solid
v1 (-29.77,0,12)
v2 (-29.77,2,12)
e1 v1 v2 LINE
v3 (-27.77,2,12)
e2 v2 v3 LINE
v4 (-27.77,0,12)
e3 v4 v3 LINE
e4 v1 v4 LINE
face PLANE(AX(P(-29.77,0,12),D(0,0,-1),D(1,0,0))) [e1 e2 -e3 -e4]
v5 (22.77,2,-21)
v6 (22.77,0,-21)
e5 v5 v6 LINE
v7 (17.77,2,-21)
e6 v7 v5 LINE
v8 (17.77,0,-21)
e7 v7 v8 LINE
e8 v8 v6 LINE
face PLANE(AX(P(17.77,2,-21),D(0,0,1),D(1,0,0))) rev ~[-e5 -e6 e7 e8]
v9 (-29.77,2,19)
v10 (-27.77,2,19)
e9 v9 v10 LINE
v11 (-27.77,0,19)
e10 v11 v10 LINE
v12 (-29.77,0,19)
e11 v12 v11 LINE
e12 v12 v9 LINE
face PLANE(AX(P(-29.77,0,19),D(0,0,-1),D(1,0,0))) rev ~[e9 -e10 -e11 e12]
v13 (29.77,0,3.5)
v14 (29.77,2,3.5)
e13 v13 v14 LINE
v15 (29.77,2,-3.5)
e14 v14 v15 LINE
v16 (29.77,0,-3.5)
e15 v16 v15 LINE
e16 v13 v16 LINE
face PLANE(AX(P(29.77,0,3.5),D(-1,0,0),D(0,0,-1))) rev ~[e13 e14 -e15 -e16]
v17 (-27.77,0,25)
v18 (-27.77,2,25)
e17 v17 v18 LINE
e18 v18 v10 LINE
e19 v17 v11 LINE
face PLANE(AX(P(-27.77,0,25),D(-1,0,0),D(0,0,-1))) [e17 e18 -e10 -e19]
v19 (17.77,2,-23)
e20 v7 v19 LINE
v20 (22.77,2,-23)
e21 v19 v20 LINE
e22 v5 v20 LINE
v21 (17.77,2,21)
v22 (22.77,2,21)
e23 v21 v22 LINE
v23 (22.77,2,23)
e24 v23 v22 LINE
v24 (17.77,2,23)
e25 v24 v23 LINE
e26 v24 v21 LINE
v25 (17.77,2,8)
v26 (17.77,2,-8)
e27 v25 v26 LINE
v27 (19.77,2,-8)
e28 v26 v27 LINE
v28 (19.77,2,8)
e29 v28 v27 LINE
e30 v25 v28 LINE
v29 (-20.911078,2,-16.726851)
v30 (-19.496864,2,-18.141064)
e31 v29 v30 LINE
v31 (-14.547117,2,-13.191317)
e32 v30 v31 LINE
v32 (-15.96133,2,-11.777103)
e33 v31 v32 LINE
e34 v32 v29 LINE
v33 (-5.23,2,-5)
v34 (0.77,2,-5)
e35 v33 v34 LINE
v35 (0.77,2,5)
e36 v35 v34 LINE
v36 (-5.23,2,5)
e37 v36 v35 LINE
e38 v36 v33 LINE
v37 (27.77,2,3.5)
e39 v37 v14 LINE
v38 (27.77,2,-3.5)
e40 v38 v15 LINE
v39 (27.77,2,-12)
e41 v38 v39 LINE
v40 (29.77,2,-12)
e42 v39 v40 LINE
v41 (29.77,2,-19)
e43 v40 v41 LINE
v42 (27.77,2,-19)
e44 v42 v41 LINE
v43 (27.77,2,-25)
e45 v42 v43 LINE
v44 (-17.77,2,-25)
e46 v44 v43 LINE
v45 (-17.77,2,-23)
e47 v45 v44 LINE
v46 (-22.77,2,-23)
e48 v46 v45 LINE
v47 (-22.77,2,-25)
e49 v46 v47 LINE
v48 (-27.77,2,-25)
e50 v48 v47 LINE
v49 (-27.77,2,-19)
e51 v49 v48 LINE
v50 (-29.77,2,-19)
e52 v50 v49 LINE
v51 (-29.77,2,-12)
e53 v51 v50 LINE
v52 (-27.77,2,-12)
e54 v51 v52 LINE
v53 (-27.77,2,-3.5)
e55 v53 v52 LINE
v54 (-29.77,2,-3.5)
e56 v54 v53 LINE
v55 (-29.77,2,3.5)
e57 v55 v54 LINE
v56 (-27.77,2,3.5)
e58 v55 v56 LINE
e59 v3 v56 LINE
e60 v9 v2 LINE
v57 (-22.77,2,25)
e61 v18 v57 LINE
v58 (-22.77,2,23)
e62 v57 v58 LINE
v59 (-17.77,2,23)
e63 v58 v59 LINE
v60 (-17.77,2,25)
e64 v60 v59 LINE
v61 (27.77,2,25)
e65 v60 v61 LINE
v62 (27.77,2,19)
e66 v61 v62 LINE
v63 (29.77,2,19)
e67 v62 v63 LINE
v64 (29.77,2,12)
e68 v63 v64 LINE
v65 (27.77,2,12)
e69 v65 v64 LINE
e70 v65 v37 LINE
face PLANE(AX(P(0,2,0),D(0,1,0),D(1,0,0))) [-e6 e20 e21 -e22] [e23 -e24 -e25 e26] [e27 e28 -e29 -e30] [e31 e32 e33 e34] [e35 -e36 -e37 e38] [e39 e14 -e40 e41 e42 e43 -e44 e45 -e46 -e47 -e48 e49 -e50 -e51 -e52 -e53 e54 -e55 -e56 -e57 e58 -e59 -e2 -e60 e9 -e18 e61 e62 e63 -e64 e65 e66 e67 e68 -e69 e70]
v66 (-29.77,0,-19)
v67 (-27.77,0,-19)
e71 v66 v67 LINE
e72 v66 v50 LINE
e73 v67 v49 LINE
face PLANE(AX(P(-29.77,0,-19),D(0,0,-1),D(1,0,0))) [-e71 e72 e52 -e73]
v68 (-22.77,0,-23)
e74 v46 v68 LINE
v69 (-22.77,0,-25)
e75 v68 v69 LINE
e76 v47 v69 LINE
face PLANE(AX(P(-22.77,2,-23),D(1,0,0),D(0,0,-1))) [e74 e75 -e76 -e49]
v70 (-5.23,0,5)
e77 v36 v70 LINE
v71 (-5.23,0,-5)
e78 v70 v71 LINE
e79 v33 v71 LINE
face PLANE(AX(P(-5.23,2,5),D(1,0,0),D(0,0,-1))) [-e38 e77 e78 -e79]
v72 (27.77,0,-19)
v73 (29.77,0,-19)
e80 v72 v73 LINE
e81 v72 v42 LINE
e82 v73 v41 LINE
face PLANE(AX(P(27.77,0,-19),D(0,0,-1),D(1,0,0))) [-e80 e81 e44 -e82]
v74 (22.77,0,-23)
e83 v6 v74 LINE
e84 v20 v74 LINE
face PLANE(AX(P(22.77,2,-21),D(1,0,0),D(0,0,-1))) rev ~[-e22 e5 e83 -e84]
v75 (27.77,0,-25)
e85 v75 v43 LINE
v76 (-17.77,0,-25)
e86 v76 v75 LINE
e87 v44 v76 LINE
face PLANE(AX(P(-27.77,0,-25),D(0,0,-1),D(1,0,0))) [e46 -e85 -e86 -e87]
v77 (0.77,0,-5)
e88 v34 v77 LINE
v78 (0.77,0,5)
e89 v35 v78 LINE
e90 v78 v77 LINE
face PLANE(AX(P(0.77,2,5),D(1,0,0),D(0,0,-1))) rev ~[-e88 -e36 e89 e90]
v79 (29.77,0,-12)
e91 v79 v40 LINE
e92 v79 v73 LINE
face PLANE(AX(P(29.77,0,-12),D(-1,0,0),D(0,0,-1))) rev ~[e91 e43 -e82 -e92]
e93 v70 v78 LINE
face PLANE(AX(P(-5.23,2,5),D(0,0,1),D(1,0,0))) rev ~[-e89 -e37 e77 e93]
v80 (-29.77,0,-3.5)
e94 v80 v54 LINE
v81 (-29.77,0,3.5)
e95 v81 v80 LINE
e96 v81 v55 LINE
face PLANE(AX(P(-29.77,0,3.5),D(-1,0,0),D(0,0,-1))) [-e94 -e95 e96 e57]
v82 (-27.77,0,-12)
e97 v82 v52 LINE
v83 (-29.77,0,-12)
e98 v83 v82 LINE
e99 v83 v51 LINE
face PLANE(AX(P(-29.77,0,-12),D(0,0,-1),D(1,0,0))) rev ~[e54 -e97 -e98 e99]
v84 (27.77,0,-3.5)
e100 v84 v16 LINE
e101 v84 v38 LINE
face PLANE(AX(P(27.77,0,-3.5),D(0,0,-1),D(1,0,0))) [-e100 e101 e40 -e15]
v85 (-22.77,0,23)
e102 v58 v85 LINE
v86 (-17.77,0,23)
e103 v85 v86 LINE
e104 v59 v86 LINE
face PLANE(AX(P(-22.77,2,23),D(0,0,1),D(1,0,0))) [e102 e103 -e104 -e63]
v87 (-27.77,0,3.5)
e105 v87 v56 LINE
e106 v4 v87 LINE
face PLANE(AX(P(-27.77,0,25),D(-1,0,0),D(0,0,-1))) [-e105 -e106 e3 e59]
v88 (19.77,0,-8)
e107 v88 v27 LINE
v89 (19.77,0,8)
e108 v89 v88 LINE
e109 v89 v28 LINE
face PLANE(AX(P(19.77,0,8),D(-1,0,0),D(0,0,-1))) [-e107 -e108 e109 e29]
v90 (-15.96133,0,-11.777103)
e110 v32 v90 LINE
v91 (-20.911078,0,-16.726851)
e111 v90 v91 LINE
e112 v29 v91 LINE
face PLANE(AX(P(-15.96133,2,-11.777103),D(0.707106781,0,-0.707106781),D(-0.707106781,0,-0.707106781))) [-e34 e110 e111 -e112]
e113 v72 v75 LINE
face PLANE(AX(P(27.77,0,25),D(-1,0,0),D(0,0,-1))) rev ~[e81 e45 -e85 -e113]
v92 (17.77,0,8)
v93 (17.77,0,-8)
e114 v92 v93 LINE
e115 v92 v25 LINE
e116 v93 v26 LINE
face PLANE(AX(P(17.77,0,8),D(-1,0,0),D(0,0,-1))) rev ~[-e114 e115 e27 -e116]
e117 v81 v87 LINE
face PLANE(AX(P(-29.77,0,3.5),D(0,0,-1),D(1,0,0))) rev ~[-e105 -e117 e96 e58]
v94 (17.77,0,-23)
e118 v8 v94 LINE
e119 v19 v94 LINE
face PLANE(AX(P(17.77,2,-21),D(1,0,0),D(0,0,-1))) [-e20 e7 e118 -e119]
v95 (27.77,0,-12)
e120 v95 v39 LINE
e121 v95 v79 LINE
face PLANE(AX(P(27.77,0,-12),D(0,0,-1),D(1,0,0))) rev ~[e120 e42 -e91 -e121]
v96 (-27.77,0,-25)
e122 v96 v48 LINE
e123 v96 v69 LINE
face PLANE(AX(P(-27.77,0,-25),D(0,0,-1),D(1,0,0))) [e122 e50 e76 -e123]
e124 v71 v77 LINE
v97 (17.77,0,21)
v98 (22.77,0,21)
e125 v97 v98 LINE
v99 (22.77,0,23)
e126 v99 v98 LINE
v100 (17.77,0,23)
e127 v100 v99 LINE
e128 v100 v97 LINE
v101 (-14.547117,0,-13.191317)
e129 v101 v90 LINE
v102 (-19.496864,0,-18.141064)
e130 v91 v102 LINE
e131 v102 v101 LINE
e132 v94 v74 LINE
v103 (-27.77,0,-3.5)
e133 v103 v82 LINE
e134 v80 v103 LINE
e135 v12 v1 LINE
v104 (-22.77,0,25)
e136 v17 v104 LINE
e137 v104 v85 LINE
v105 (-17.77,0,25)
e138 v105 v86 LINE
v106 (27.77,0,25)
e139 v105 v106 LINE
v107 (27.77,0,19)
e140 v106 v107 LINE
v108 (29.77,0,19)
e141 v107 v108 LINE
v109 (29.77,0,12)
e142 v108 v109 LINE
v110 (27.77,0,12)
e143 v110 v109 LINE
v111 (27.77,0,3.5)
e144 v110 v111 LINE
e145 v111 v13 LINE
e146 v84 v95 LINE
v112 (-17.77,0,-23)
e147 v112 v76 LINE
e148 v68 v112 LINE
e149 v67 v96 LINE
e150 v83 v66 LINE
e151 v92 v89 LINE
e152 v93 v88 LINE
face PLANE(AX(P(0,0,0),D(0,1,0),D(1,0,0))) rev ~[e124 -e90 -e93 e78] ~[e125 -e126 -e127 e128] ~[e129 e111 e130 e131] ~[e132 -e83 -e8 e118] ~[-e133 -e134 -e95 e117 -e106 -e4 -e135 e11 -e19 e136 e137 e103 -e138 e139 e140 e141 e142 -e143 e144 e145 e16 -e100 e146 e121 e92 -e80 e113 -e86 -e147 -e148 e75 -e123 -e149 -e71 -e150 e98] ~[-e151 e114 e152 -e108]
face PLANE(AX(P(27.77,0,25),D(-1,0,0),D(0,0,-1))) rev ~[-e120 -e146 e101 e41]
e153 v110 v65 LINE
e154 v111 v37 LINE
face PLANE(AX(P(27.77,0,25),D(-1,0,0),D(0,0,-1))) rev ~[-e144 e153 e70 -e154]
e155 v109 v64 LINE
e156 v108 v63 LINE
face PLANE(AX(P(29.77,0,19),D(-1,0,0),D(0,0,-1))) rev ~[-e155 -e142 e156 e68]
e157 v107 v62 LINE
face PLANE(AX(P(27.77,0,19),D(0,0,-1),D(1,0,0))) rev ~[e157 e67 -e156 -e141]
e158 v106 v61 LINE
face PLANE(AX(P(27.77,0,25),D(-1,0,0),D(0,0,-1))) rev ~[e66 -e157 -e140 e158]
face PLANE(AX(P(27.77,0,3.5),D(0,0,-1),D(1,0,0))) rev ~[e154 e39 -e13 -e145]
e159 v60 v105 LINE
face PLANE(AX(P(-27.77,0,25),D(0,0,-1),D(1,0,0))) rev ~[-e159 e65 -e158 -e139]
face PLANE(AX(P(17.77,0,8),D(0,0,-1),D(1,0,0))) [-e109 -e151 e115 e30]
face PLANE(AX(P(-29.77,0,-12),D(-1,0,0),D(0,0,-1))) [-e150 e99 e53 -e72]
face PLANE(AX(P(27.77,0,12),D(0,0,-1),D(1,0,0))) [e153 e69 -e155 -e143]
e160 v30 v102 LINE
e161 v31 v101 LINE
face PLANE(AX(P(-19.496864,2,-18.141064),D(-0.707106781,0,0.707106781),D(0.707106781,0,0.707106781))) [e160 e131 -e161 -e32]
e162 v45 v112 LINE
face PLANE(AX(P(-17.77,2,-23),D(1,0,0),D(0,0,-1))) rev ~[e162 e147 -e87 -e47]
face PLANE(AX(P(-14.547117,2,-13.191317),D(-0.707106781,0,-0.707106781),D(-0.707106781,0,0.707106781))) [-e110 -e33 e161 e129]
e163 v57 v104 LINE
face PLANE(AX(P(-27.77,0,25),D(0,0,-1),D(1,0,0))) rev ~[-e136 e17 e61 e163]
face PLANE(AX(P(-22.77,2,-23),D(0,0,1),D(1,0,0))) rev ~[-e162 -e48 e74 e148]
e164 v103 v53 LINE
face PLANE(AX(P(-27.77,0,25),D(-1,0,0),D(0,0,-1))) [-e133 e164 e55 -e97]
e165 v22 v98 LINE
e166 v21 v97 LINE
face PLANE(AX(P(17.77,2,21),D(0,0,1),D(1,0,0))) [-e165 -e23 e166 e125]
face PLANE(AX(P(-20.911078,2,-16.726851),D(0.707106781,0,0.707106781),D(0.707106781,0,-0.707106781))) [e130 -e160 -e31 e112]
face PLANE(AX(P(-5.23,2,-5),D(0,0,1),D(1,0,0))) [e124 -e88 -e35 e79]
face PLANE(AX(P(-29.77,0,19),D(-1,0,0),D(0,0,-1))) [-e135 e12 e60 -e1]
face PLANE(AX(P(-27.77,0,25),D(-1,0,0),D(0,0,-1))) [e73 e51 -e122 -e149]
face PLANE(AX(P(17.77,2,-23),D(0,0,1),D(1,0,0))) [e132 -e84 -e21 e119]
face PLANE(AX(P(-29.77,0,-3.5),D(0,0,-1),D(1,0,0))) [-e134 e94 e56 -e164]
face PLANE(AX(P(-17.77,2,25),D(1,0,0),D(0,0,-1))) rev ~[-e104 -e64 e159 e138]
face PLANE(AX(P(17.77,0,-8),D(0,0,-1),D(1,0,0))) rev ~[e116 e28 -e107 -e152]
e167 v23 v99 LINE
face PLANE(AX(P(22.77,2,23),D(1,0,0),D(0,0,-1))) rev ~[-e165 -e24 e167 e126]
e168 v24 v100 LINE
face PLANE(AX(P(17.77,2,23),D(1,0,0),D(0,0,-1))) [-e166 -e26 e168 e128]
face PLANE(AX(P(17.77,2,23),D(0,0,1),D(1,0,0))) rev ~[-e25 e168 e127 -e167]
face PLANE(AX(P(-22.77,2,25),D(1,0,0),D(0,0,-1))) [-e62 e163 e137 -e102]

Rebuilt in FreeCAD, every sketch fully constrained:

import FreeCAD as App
import Part
import Sketcher
from FreeCAD import Vector
Q = App.Units.Quantity


def add_polygon(sketch, points):
    """Adds a closed chain of lines whose ends are joined by coincident constraints."""
    first, n = sketch.GeometryCount, len(points)
    for a, b in zip(points, points[1:] + points[:1]):
        sketch.addGeometry(Part.LineSegment(App.Vector(*a, 0), App.Vector(*b, 0)), False)
    for i in range(n):
        sketch.addConstraint(Sketcher.Constraint("Coincident", first + i, 2, first + (i + 1) % n, 1))

doc = App.newDocument("Part")
body = doc.addObject("PartDesign::Body", "Body")

sketch1 = body.newObject("Sketcher::SketchObject", "Sketch")
sketch1.AttachmentSupport = (doc.getObject("XZ_Plane"), [""])
sketch1.MapMode = "FlatFace"
add_polygon(sketch1, [(-27.8, 19), (-27.8, 25), (27.8, 25), (27.8, 19), (29.8, 19), (29.8, 12), (27.8, 12), (27.8, 3.5), (29.8, 3.5), (29.8, -3.5), (27.8, -3.5), (27.8, -12), (29.8, -12), (29.8, -19), (27.8, -19), (27.8, -25), (-27.8, -25), (-27.8, -19), (-29.8, -19), (-29.8, -12), (-27.8, -12), (-27.8, -3.5), (-29.8, -3.5), (-29.8, 3.5), (-27.8, 3.5), (-27.8, 12), (-29.8, 12), (-29.8, 19)])
add_polygon(sketch1, [(19.8, 8), (17.8, 8), (17.8, -8), (19.8, -8)])
sketch1.addConstraint(Sketcher.Constraint("Vertical", 0))
sketch1.addConstraint(Sketcher.Constraint("Horizontal", 1))
sketch1.addConstraint(Sketcher.Constraint("Vertical", 2))
sketch1.addConstraint(Sketcher.Constraint("Horizontal", 3))
sketch1.addConstraint(Sketcher.Constraint("Vertical", 4))
sketch1.addConstraint(Sketcher.Constraint("Horizontal", 5))
sketch1.addConstraint(Sketcher.Constraint("Vertical", 6))
sketch1.addConstraint(Sketcher.Constraint("Horizontal", 7))
sketch1.addConstraint(Sketcher.Constraint("Vertical", 8))
sketch1.addConstraint(Sketcher.Constraint("Horizontal", 9))
sketch1.addConstraint(Sketcher.Constraint("Vertical", 10))
sketch1.addConstraint(Sketcher.Constraint("Horizontal", 11))
sketch1.addConstraint(Sketcher.Constraint("Vertical", 12))
sketch1.addConstraint(Sketcher.Constraint("Horizontal", 13))
sketch1.addConstraint(Sketcher.Constraint("Vertical", 14))
sketch1.addConstraint(Sketcher.Constraint("Horizontal", 15))
sketch1.addConstraint(Sketcher.Constraint("Vertical", 16))
sketch1.addConstraint(Sketcher.Constraint("Horizontal", 17))
sketch1.addConstraint(Sketcher.Constraint("Vertical", 18))
sketch1.addConstraint(Sketcher.Constraint("Horizontal", 19))
sketch1.addConstraint(Sketcher.Constraint("Vertical", 20))
sketch1.addConstraint(Sketcher.Constraint("Horizontal", 21))
sketch1.addConstraint(Sketcher.Constraint("Vertical", 22))
sketch1.addConstraint(Sketcher.Constraint("Horizontal", 23))
sketch1.addConstraint(Sketcher.Constraint("Vertical", 24))
sketch1.addConstraint(Sketcher.Constraint("Horizontal", 25))
sketch1.addConstraint(Sketcher.Constraint("Vertical", 26))
sketch1.addConstraint(Sketcher.Constraint("Horizontal", 27))
sketch1.addConstraint(Sketcher.Constraint("Horizontal", 28))
sketch1.addConstraint(Sketcher.Constraint("Vertical", 29))
sketch1.addConstraint(Sketcher.Constraint("Horizontal", 30))
sketch1.addConstraint(Sketcher.Constraint("Vertical", 31))
sketch1.addConstraint(Sketcher.Constraint("Symmetric", 0, 2, 14, 2, -1, 1))
sketch1.addConstraint(Sketcher.Constraint("Symmetric", 2, 2, 16, 2, -1, 1))
sketch1.addConstraint(Sketcher.Constraint("Symmetric", 4, 2, 18, 2, -1, 1))
sketch1.addConstraint(Sketcher.Constraint("Symmetric", 6, 2, 20, 2, -1, 1))
sketch1.addConstraint(Sketcher.Constraint("Symmetric", 8, 2, 22, 2, -1, 1))
sketch1.addConstraint(Sketcher.Constraint("Symmetric", 10, 2, 24, 2, -1, 1))
sketch1.addConstraint(Sketcher.Constraint("Symmetric", 12, 2, 26, 2, -1, 1))
sketch1.addConstraint(Sketcher.Constraint("Symmetric", 13, 2, 16, 2, -2))
sketch1.addConstraint(Sketcher.Constraint("Symmetric", 11, 2, 18, 2, -2))
sketch1.addConstraint(Sketcher.Constraint("Symmetric", 9, 2, 20, 2, -2))
sketch1.addConstraint(Sketcher.Constraint("Vertical", 2, 2, 5, 2))
sketch1.addConstraint(Sketcher.Constraint("Vertical", 4, 2, 7, 2))
sketch1.addConstraint(Sketcher.Constraint("Equal", 27, 28))
sketch1.addConstraint(Sketcher.Constraint("Equal", 4, 8))
sketch1.addConstraint(Sketcher.Constraint("DistanceX", 3, 1, 3, 2, 2.0))
sketch1.addConstraint(Sketcher.Constraint("DistanceY", 0, 1, 0, 2, 6.0))
sketch1.addConstraint(Sketcher.Constraint("DistanceY", 4, 2, 4, 1, 7.0))
sketch1.addConstraint(Sketcher.Constraint("DistanceY", 29, 2, 29, 1, 16.0))
sketch1.addConstraint(Sketcher.Constraint("DistanceY", 6, 2, 6, 1, 8.5))
sketch1.addConstraint(Sketcher.Constraint("DistanceY", -1, 1, 28, 2, 8.0))
sketch1.addConstraint(Sketcher.Constraint("DistanceX", 28, 2, 5, 2, 10.0))
sketch1.addConstraint(Sketcher.Constraint("DistanceX", 1, 1, 1, 2, 55.54))
pad1 = body.newObject("PartDesign::Pad", "Pad")
pad1.Profile = sketch1
pad1.Length = 2
pad1.Reversed = True

sketch2 = body.newObject("Sketcher::SketchObject", "Sketch001")
sketch2.AttachmentSupport = (doc.getObject("XZ_Plane"), [""])
sketch2.MapMode = "FlatFace"
sketch2.AttachmentOffset = App.Placement(Vector(0, 0, -2), App.Rotation())
add_polygon(sketch2, [(17.8, 21), (17.8, 23), (22.8, 23), (22.8, 21)])
add_polygon(sketch2, [(17.8, -23), (17.8, -21), (22.8, -21), (22.8, -23)])
add_polygon(sketch2, [(-22.8, -25), (-22.8, -23), (-17.8, -23), (-17.8, -25)])
add_polygon(sketch2, [(-22.8, 23), (-22.8, 25), (-17.8, 25), (-17.8, 23)])
sketch2.addConstraint(Sketcher.Constraint("Vertical", 0))
sketch2.addConstraint(Sketcher.Constraint("Horizontal", 1))
sketch2.addConstraint(Sketcher.Constraint("Vertical", 2))
sketch2.addConstraint(Sketcher.Constraint("Horizontal", 3))
sketch2.addConstraint(Sketcher.Constraint("Vertical", 4))
sketch2.addConstraint(Sketcher.Constraint("Horizontal", 5))
sketch2.addConstraint(Sketcher.Constraint("Vertical", 6))
sketch2.addConstraint(Sketcher.Constraint("Horizontal", 7))
sketch2.addConstraint(Sketcher.Constraint("Vertical", 8))
sketch2.addConstraint(Sketcher.Constraint("Horizontal", 9))
sketch2.addConstraint(Sketcher.Constraint("Vertical", 10))
sketch2.addConstraint(Sketcher.Constraint("Horizontal", 11))
sketch2.addConstraint(Sketcher.Constraint("Vertical", 12))
sketch2.addConstraint(Sketcher.Constraint("Horizontal", 13))
sketch2.addConstraint(Sketcher.Constraint("Vertical", 14))
sketch2.addConstraint(Sketcher.Constraint("Horizontal", 15))
sketch2.addConstraint(Sketcher.Constraint("Symmetric", 1, 2, 8, 2, -1, 1))
sketch2.addConstraint(Sketcher.Constraint("Symmetric", 7, 2, 14, 2, -1, 1))
sketch2.addConstraint(Sketcher.Constraint("Symmetric", 6, 2, 8, 2, -2))
sketch2.addConstraint(Sketcher.Constraint("Symmetric", 3, 2, 4, 2, -1))
sketch2.addConstraint(Sketcher.Constraint("Symmetric", 11, 2, 12, 2, -1))
sketch2.addConstraint(Sketcher.Constraint("Vertical", 10, 2, 13, 2))
sketch2.addConstraint(Sketcher.Constraint("Equal", 6, 8))
sketch2.addConstraint(Sketcher.Constraint("DistanceX", 1, 1, 1, 2, 5.0))
sketch2.addConstraint(Sketcher.Constraint("DistanceY", 0, 1, 0, 2, 2.0))
sketch2.addConstraint(Sketcher.Constraint("DistanceY", -1, 1, 0, 2, 23.0))
sketch2.addConstraint(Sketcher.Constraint("DistanceX", -1, 1, 0, 2, 17.77))
pocket1 = body.newObject("PartDesign::Pocket", "Pocket")
pocket1.Profile = sketch2
pocket1.Length = 2
pocket1.Reversed = True

sketch3 = body.newObject("Sketcher::SketchObject", "Sketch002")
sketch3.AttachmentSupport = (doc.getObject("XZ_Plane"), [""])
sketch3.MapMode = "FlatFace"
sketch3.AttachmentOffset = App.Placement(Vector(0, 0, -2), App.Rotation())
add_polygon(sketch3, [(-5, -5), (-5, 5), (1, 5), (1, -5)])
sketch3.addConstraint(Sketcher.Constraint("Vertical", 0))
sketch3.addConstraint(Sketcher.Constraint("Horizontal", 1))
sketch3.addConstraint(Sketcher.Constraint("Vertical", 2))
sketch3.addConstraint(Sketcher.Constraint("Horizontal", 3))
sketch3.addConstraint(Sketcher.Constraint("DistanceX", 1, 1, 1, 2, 6.0))
sketch3.addConstraint(Sketcher.Constraint("DistanceY", 0, 1, 0, 2, 10.0))
sketch3.addConstraint(Sketcher.Constraint("DistanceY", -1, 1, 0, 2, 5.0))
sketch3.addConstraint(Sketcher.Constraint("DistanceX", 0, 2, -1, 1, 5.23))
pocket2 = body.newObject("PartDesign::Pocket", "Pocket001")
pocket2.Profile = sketch3
pocket2.Length = 2
pocket2.Reversed = True

sketch4 = body.newObject("Sketcher::SketchObject", "Sketch003")
sketch4.AttachmentSupport = (doc.getObject("XZ_Plane"), [""])
sketch4.MapMode = "FlatFace"
sketch4.AttachmentOffset = App.Placement(Vector(0, 0, -2), App.Rotation())
add_polygon(sketch4, [(-14.5, -13.2), (-19.5, -18.1), (-20.9, -16.7), (-16, -11.8)])
sketch4.addConstraint(Sketcher.Constraint("Perpendicular", 0, 1))
sketch4.addConstraint(Sketcher.Constraint("Perpendicular", 1, 2))
sketch4.addConstraint(Sketcher.Constraint("Perpendicular", 2, 3))
sketch4.addConstraint(Sketcher.Constraint("Angle", 0, Q("-135 deg")))
sketch4.addConstraint(Sketcher.Constraint("Distance", 0, 7.0))
sketch4.addConstraint(Sketcher.Constraint("Distance", 1, 2.0))
sketch4.addConstraint(Sketcher.Constraint("DistanceY", 1, 2, -1, 1, 16.726851))
sketch4.addConstraint(Sketcher.Constraint("DistanceX", 2, 2, -1, 1, 15.96133))
pocket3 = body.newObject("PartDesign::Pocket", "Pocket002")
pocket3.Profile = sketch4
pocket3.Length = 2
pocket3.Reversed = True

doc.recompute()
